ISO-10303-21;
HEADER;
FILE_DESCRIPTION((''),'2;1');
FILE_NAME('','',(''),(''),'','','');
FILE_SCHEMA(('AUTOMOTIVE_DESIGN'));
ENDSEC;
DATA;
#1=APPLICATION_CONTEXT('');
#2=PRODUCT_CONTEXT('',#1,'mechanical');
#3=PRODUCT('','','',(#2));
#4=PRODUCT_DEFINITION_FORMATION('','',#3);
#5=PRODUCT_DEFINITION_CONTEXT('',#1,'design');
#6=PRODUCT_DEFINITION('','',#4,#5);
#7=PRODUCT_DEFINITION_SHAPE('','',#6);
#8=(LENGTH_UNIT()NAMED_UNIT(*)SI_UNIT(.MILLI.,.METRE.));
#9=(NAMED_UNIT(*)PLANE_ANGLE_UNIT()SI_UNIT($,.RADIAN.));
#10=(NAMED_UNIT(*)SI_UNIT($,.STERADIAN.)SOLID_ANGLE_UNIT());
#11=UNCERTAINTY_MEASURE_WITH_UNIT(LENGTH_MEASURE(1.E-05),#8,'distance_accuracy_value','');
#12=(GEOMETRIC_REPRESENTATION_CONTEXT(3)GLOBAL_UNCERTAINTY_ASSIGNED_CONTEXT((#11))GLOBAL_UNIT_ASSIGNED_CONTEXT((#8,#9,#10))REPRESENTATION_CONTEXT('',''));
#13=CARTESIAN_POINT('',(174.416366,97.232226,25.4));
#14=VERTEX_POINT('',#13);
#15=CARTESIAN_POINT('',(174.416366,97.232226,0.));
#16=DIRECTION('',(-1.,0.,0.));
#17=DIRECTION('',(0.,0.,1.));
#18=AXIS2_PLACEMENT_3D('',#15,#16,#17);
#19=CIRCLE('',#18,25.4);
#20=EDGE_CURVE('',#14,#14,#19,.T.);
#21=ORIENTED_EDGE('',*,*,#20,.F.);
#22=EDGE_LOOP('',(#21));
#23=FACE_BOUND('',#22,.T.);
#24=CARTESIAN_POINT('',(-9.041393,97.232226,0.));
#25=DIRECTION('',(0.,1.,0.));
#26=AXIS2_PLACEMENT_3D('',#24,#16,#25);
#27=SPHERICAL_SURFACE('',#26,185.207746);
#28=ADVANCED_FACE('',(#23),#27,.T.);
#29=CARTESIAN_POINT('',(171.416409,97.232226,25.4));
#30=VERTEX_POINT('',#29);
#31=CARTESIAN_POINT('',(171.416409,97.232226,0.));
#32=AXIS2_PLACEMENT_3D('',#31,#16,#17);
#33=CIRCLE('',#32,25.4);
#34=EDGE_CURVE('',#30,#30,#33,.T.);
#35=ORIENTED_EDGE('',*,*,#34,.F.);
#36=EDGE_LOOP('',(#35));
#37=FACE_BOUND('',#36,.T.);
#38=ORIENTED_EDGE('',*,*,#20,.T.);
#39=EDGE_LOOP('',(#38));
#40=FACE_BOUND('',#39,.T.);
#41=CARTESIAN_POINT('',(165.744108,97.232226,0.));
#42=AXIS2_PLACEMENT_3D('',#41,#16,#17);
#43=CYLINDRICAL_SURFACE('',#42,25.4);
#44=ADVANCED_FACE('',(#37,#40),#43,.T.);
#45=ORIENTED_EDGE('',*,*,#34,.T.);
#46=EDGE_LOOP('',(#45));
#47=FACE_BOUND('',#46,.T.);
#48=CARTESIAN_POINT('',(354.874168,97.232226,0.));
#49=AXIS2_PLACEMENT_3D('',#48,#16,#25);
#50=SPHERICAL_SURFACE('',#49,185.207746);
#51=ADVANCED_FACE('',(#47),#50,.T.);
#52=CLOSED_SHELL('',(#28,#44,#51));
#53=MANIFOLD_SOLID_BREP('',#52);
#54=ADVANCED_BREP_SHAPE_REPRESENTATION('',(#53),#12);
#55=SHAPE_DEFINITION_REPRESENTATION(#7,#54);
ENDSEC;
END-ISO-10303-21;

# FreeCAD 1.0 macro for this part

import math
import FreeCAD as App
import Part
import Sketcher

V = App.Vector
Q = App.Units.Quantity

doc = App.newDocument("Part")
body = doc.addObject("PartDesign::Body", "Body")

# Sketch on XY plane
sketch1 = body.newObject("Sketcher::SketchObject", "Sketch")
sketch1.AttachmentSupport = (doc.getObject("XY_Plane"), [""])
sketch1.MapMode = "FlatFace"
sketch1.addGeometry([
    Part.LineSegment(V(174.4, 122.6, 0), V(171.4, 122.6, 0)),
    Part.ArcOfCircle(Part.Circle(V(354.9, 97.2, 0), V(0, 0, 1), 185.2), math.radians(172.12), math.radians(180)),
    Part.LineSegment(V(169.7, 97.2, 0), V(176.2, 97.2, 0)),
    Part.ArcOfCircle(Part.Circle(V(-9, 97.2, 0), V(0, 0, 1), 185.2), math.radians(0), math.radians(7.88)),
], False)
sketch1.addGeometry(Part.LineSegment(V(-9, 97.2, 0), V(354.9, 97.2, 0)), True)  # axis
sketch1.addConstraint([
    Sketcher.Constraint("Coincident", 0, 2, 1, 1),
    Sketcher.Constraint("Coincident", 1, 2, 2, 1),
    Sketcher.Constraint("Coincident", 2, 2, 3, 1),
    Sketcher.Constraint("Coincident", 3, 2, 0, 1),
    Sketcher.Constraint("Horizontal", 0),
    Sketcher.Constraint("Horizontal", 2),
    Sketcher.Constraint("Horizontal", 4),
    Sketcher.Constraint("Coincident", 4, 1, 3, 3),
    Sketcher.Constraint("Coincident", 4, 2, 1, 3),
    Sketcher.Constraint("Equal", 1, 3),
    Sketcher.Constraint("Horizontal", 3, 3, 1, 2),
    Sketcher.Constraint("DistanceY", 3, 3, 0, 2, Q("25.4 mm")),
    Sketcher.Constraint("Radius", 1, Q("185.207746 mm")),
    Sketcher.Constraint("DistanceX", 4, 1, 4, 2, Q("363.91556 mm")),
    Sketcher.Constraint("DistanceX", -1, 1, 0, 2, Q("171.416409 mm")),
    Sketcher.Constraint("DistanceY", -1, 1, 1, 3, Q("97.232226 mm")),
])
revolution = body.newObject("PartDesign::Revolution", "Revolution")
revolution.Profile = sketch1
revolution.ReferenceAxis = (sketch1, ["Axis0"])
revolution.Angle = 360

doc.recompute()
